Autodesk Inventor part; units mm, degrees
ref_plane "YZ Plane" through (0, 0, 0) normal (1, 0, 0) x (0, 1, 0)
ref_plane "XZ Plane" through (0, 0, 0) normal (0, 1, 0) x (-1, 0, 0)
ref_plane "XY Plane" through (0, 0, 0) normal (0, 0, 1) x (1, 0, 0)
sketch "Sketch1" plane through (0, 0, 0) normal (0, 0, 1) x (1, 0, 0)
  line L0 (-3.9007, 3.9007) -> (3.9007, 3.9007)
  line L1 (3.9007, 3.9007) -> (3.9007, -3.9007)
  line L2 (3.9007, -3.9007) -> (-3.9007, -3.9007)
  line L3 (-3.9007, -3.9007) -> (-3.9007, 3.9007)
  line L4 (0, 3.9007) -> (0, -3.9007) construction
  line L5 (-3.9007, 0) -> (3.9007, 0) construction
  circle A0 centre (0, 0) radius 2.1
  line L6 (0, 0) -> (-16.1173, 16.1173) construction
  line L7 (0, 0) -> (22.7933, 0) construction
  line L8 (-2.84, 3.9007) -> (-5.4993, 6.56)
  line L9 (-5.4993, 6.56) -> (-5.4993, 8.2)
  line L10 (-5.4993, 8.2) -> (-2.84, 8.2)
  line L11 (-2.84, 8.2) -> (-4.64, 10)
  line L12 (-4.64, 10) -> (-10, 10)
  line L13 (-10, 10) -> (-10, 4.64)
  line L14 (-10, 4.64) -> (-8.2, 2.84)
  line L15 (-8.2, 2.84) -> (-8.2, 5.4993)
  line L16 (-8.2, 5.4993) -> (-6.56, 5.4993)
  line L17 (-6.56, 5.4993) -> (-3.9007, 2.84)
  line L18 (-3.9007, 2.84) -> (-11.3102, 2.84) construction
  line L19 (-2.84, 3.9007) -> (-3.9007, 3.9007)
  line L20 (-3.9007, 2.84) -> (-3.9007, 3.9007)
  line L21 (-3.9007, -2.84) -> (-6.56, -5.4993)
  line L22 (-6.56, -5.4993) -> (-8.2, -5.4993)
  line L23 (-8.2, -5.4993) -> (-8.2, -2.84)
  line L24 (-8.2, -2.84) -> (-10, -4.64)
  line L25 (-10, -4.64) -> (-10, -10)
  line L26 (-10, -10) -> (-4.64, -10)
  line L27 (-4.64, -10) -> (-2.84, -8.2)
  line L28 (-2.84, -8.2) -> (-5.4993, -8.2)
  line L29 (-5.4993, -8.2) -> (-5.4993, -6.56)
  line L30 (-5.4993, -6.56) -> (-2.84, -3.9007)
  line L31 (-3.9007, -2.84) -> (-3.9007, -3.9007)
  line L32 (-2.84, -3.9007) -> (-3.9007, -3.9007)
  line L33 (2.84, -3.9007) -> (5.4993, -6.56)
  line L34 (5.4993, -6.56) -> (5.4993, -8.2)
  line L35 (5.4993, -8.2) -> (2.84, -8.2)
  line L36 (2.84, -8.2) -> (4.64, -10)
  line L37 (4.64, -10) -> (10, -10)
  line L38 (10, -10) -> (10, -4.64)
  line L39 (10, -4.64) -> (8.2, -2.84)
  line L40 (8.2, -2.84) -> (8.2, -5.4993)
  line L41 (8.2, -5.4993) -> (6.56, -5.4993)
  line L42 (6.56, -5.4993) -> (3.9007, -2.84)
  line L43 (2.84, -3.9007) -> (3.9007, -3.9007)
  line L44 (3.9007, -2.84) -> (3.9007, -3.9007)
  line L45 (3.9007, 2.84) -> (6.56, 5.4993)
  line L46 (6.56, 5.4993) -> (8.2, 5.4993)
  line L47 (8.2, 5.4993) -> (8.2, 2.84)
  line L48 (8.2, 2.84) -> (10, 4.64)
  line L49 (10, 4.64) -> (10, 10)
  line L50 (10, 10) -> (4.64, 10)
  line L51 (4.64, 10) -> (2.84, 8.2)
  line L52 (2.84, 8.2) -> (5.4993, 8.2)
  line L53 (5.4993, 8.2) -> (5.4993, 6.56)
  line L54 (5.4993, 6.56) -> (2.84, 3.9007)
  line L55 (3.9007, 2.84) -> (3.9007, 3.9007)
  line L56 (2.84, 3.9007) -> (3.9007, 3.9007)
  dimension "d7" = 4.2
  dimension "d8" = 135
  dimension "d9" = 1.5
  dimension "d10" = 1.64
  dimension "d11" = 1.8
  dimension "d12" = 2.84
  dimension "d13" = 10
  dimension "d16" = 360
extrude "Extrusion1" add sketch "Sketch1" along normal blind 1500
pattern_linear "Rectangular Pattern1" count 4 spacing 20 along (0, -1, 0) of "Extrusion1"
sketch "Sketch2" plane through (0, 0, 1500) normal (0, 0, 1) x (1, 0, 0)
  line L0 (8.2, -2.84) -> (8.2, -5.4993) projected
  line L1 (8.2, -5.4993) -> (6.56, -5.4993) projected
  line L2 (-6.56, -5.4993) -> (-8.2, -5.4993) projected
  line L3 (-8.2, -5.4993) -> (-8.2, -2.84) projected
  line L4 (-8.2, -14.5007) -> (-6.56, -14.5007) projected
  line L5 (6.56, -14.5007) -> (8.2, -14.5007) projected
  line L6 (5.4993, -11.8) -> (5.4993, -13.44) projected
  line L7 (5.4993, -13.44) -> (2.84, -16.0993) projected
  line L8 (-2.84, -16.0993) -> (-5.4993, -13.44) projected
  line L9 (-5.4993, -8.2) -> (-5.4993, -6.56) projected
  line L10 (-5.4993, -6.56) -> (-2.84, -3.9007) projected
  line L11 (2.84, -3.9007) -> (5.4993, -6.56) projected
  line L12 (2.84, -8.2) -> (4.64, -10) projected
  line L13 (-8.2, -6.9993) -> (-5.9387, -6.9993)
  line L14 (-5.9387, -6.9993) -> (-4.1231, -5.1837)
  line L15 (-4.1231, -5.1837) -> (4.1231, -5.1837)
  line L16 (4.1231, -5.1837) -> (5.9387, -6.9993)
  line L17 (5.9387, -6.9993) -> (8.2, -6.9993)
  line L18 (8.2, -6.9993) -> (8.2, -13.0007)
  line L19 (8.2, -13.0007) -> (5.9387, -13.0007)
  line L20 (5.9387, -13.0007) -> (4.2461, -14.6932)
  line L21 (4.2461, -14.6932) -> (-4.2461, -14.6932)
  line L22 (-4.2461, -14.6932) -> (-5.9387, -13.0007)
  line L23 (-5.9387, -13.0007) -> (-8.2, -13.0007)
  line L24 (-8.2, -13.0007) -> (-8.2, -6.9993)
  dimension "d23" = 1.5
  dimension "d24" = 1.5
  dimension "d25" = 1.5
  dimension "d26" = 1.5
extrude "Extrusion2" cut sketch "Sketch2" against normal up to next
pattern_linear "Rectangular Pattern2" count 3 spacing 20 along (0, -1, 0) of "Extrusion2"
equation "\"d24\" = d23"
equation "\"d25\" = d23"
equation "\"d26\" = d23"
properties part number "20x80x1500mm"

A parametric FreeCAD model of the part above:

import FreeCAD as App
import Part
import Sketcher

V = App.Vector


def add_polygon(sketch, points):
    """Adds a closed chain of lines whose ends are joined by coincident constraints."""
    first, n = sketch.GeometryCount, len(points)
    for a, b in zip(points, points[1:] + points[:1]):
        sketch.addGeometry(Part.LineSegment(App.Vector(*a, 0), App.Vector(*b, 0)), False)
    for i in range(n):
        sketch.addConstraint(Sketcher.Constraint("Coincident", first + i, 2, first + (i + 1) % n, 1))

doc = App.newDocument("Part")
params = doc.addObject("Spreadsheet::Sheet", "Params")
for row, (alias, value) in enumerate([
    ("sketch1_diameter", "4.2 mm"),
    ("sketch1_width", "1.64 mm"),
    ("pad1_length", "1500 mm"),
    ("linearpattern_pitch", "20 mm"),
    ("pocket1_length", "1500 mm"),
    ("linearpattern2_pitch", "20 mm"),
], start=1):
    params.set(f"A{row}", alias)
    params.set(f"B{row}", "=" + value)
    params.setAlias(f"B{row}", alias)

body = doc.addObject("PartDesign::Body", "Body")

# Sketch on XY plane
sketch1 = body.newObject("Sketcher::SketchObject", "Sketch")
sketch1.AttachmentSupport = (doc.getObject("XY_Plane"), [""])
sketch1.MapMode = "FlatFace"
add_polygon(sketch1, [(-6.6, 5.5), (-3.9, 2.8), (-3.9, -2.8), (-6.6, -5.5), (-8.2, -5.5), (-8.2, -2.8), (-10, -4.6), (-10, -10), (-4.6, -10), (-2.8, -8.2), (-5.5, -8.2), (-5.5, -6.6), (-2.8, -3.9), (2.8, -3.9), (5.5, -6.6), (5.5, -8.2), (2.8, -8.2), (4.6, -10), (10, -10), (10, -4.6), (8.2, -2.8), (8.2, -5.5), (6.6, -5.5), (3.9, -2.8), (3.9, 2.8), (6.6, 5.5), (8.2, 5.5), (8.2, 2.8), (10, 4.6), (10, 10), (4.6, 10), (2.8, 8.2), (5.5, 8.2), (5.5, 6.6), (2.8, 3.9), (-2.8, 3.9), (-5.5, 6.6), (-5.5, 8.2), (-2.8, 8.2), (-4.6, 10), (-10, 10), (-10, 4.6), (-8.2, 2.8), (-8.2, 5.5)])  # lines 0-43
sketch1.addGeometry(Part.Circle(V(0, 0, 0), V(0, 0, 1), 2.1), False)  # 44
sketch1.addConstraint([
    Sketcher.Constraint("Vertical", 1),
    Sketcher.Constraint("Horizontal", 3),
    Sketcher.Constraint("Vertical", 4),
    Sketcher.Constraint("Vertical", 6),
    Sketcher.Constraint("Horizontal", 7),
    Sketcher.Constraint("Horizontal", 9),
    Sketcher.Constraint("Vertical", 10),
    Sketcher.Constraint("Horizontal", 12),
    Sketcher.Constraint("Vertical", 14),
    Sketcher.Constraint("Horizontal", 15),
    Sketcher.Constraint("Horizontal", 17),
    Sketcher.Constraint("Vertical", 18),
    Sketcher.Constraint("Vertical", 20),
    Sketcher.Constraint("Horizontal", 21),
    Sketcher.Constraint("Vertical", 23),
    Sketcher.Constraint("Horizontal", 25),
    Sketcher.Constraint("Vertical", 26),
    Sketcher.Constraint("Vertical", 28),
    Sketcher.Constraint("Horizontal", 29),
    Sketcher.Constraint("Horizontal", 31),
    Sketcher.Constraint("Vertical", 32),
    Sketcher.Constraint("Horizontal", 34),
    Sketcher.Constraint("Vertical", 36),
    Sketcher.Constraint("Horizontal", 37),
    Sketcher.Constraint("Horizontal", 39),
    Sketcher.Constraint("Vertical", 40),
    Sketcher.Constraint("Vertical", 42),
    Sketcher.Constraint("Horizontal", 43),
    Sketcher.Constraint("Coincident", 44, 3, -1, 1),
    Sketcher.Constraint("Symmetric", 0, 2, 22, 2, -1, 1),
    Sketcher.Constraint("Symmetric", 2, 2, 24, 2, -1, 1),
    Sketcher.Constraint("Symmetric", 4, 2, 26, 2, -1, 1),
    Sketcher.Constraint("Symmetric", 5, 2, 27, 2, -1, 1),
    Sketcher.Constraint("Symmetric", 7, 2, 29, 2, -1, 1),
    Sketcher.Constraint("Symmetric", 8, 2, 30, 2, -1, 1),
    Sketcher.Constraint("Symmetric", 10, 2, 32, 2, -1, 1),
    Sketcher.Constraint("Symmetric", 11, 2, 33, 2, -1, 1),
    Sketcher.Constraint("Symmetric", 13, 2, 35, 2, -1, 1),
    Sketcher.Constraint("Symmetric", 15, 2, 37, 2, -1, 1),
    Sketcher.Constraint("Symmetric", 16, 2, 38, 2, -1, 1),
    Sketcher.Constraint("Symmetric", 18, 2, 40, 2, -1, 1),
    Sketcher.Constraint("Symmetric", 19, 2, 41, 2, -1, 1),
    Sketcher.Constraint("Symmetric", 21, 2, 43, 2, -1, 1),
    Sketcher.Constraint("Symmetric", 10, 2, 13, 2, -2),
    Sketcher.Constraint("Symmetric", 8, 2, 15, 2, -2),
    Sketcher.Constraint("Symmetric", 7, 2, 16, 2, -2),
    Sketcher.Constraint("Symmetric", 5, 2, 18, 2, -2),
    Sketcher.Constraint("Symmetric", 4, 2, 19, 2, -2),
    Sketcher.Constraint("Symmetric", 2, 2, 21, 2, -2),
    Sketcher.Constraint("Perpendicular", 0, 2),
    Sketcher.Constraint("Parallel", 2, 5),
    Sketcher.Constraint("Parallel", 5, 8),
    Sketcher.Constraint("Parallel", 8, 11),
    Sketcher.Constraint("Perpendicular", 11, 13),
    Sketcher.Constraint("Parallel", 13, 16),
    Sketcher.Constraint("Perpendicular", 22, 24),
    Sketcher.Constraint("Perpendicular", 33, 35),
    Sketcher.Constraint("Horizontal", 1, 2, 4, 2),
    Sketcher.Constraint("Vertical", 8, 2, 11, 2),
    Sketcher.Constraint("Equal", 34, 1),
    Sketcher.Constraint("Equal", 37, 4),
    Sketcher.Constraint("Equal", 39, 6),
    Sketcher.Constraint("Equal", 43, 10),
    Sketcher.Constraint("Equal", 5, 8),
    Sketcher.Constraint("Diameter", 44, 4.2),
    Sketcher.Constraint("DistanceX", 5, 2, -1, 1, 10.0),
    Sketcher.Constraint("DistanceX", 3, 2, 3, 1, 1.64),
    Sketcher.Constraint("DistanceX", 5, 2, 3, 2, 1.8),
    Sketcher.Constraint("DistanceY", -1, 1, 0, 2, 2.84),
    Sketcher.Constraint("DistanceX", 9, 2, 9, 1, 2.6593),
])
sketch1.setExpression("Constraints[108]", "Params.sketch1_diameter")
sketch1.setExpression("Constraints[110]", "Params.sketch1_width")
pad1 = body.newObject("PartDesign::Pad", "Pad")
pad1.Profile = sketch1
pad1.setExpression("Length", "Params.pad1_length")
doc.recompute()

linearpattern = body.newObject("PartDesign::LinearPattern", "LinearPattern")
linearpattern.Originals = [pad1]
linearpattern.Direction = (doc.getObject("Y_Axis"), [""])
linearpattern.Mode = "offset"
linearpattern.setExpression("Offset", "Params.linearpattern_pitch")
linearpattern.Occurrences = 4
linearpattern.Reversed = True
body.Tip = linearpattern

# Sketch on XY plane
sketch2 = body.newObject("Sketcher::SketchObject", "Sketch001")
sketch2.AttachmentSupport = (doc.getObject("XY_Plane"), [""])
sketch2.MapMode = "FlatFace"
sketch2.AttachmentOffset = App.Placement(V(0, 0, 1500), App.Rotation())
add_polygon(sketch2, [(4.2, -14.7), (5.5, -13.4), (5.9, -13), (8.2, -13), (8.2, -7), (5.9, -7), (5.5, -6.6), (4.1, -5.2), (-4.1, -5.2), (-5.5, -6.6), (-5.9, -7), (-8.2, -7), (-8.2, -13), (-5.9, -13), (-5.5, -13.4), (-4.2, -14.7)])  # lines 0-15
sketch2.addConstraint([
    Sketcher.Constraint("Horizontal", 2),
    Sketcher.Constraint("Vertical", 3),
    Sketcher.Constraint("Horizontal", 4),
    Sketcher.Constraint("Horizontal", 7),
    Sketcher.Constraint("Horizontal", 10),
    Sketcher.Constraint("Vertical", 11),
    Sketcher.Constraint("Horizontal", 12),
    Sketcher.Constraint("Horizontal", 15),
    Sketcher.Constraint("Symmetric", 5, 2, 8, 2, -2),
    Sketcher.Constraint("Symmetric", 4, 2, 9, 2, -2),
    Sketcher.Constraint("Symmetric", 2, 2, 11, 2, -2),
    Sketcher.Constraint("Symmetric", 0, 2, 13, 2, -2),
    Sketcher.Constraint("Parallel", 0, 1),
    Sketcher.Constraint("Perpendicular", 1, 5),
    Sketcher.Constraint("Parallel", 5, 6),
    Sketcher.Constraint("Perpendicular", 6, 8),
    Sketcher.Constraint("Parallel", 8, 9),
    Sketcher.Constraint("Perpendicular", 9, 13),
    Sketcher.Constraint("Parallel", 13, 14),
    Sketcher.Constraint("Vertical", 1, 2, 4, 2),
    Sketcher.Constraint("Vertical", 0, 2, 5, 2),
    Sketcher.Constraint("DistanceX", -1, 1, 2, 2, 8.2),
    Sketcher.Constraint("DistanceY", 0, 2, -1, 1, 13.44),
    Sketcher.Constraint("DistanceY", 5, 2, -1, 1, 6.56),
    Sketcher.Constraint("DistanceX", 2, 1, 2, 2, 2.2613),
    Sketcher.Constraint("DistanceX", 7, 2, 7, 1, 8.2462),
    Sketcher.Constraint("DistanceX", 15, 1, 15, 2, 8.4922),
    Sketcher.Constraint("DistanceY", 3, 1, 3, 2, 6.0014),
])
pocket1 = body.newObject("PartDesign::Pocket", "Pocket")
pocket1.Profile = sketch2
pocket1.setExpression("Length", "Params.pocket1_length")
doc.recompute()

linearpattern2 = body.newObject("PartDesign::LinearPattern", "LinearPattern001")
linearpattern2.Originals = [pocket1]
linearpattern2.Direction = (doc.getObject("Y_Axis"), [""])
linearpattern2.Mode = "offset"
linearpattern2.setExpression("Offset", "Params.linearpattern2_pitch")
linearpattern2.Occurrences = 3
linearpattern2.Reversed = True
body.Tip = linearpattern2

doc.recompute()
